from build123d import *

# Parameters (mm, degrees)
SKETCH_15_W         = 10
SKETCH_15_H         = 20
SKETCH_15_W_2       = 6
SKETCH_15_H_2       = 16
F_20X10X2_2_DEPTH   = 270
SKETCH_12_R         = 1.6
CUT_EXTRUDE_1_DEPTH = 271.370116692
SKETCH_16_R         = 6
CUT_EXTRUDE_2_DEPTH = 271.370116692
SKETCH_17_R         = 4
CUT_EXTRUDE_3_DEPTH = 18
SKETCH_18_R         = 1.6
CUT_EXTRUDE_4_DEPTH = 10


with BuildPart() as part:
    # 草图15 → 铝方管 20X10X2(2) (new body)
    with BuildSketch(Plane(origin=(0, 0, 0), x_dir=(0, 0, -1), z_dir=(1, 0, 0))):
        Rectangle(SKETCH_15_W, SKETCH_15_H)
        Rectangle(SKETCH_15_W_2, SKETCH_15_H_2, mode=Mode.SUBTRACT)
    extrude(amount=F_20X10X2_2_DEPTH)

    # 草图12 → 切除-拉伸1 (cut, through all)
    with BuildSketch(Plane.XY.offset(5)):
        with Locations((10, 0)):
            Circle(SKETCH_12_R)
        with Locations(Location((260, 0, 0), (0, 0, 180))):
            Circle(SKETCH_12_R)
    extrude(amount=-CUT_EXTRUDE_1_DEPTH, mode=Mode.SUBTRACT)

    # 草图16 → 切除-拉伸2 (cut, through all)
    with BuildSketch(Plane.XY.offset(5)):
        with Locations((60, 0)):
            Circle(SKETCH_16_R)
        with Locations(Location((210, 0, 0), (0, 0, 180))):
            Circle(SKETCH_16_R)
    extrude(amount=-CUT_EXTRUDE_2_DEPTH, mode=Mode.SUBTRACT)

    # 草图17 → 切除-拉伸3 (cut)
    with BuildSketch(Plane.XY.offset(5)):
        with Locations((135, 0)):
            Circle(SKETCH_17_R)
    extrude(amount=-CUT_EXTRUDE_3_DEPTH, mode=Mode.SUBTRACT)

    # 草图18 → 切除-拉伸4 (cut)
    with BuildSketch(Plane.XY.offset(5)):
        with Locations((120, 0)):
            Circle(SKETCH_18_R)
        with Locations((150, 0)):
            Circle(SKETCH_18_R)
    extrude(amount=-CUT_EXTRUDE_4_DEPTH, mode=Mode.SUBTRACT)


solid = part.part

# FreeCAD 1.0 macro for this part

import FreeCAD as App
import Part
import Sketcher
from FreeCAD import Vector
Q = App.Units.Quantity


def add_polygon(sketch, points):
    """Adds a closed chain of lines whose ends are joined by coincident constraints."""
    first, n = sketch.GeometryCount, len(points)
    for a, b in zip(points, points[1:] + points[:1]):
        sketch.addGeometry(Part.LineSegment(App.Vector(*a, 0), App.Vector(*b, 0)), False)
    for i in range(n):
        sketch.addConstraint(Sketcher.Constraint("Coincident", first + i, 2, first + (i + 1) % n, 1))

doc = App.newDocument("Part")
params = doc.addObject("Spreadsheet::Sheet", "Params")
for row, (alias, value) in enumerate([
    ("sketch1_width", "20 mm"),
    ("sketch1_width2", "16 mm"),
    ("sketch1_height", "10 mm"),
    ("sketch1_height2", "6 mm"),
    ("pad1_length", "270 mm"),
    ("sketch2_diameter", "3.2 mm"),
    ("sketch3_diameter", "12 mm"),
    ("sketch4_diameter", "8 mm"),
    ("pocket3_length", "18 mm"),
    ("sketch5_diameter", "3.2 mm"),
    ("pocket4_length", "10 mm"),
], start=1):
    params.set(f"A{row}", alias)
    params.set(f"B{row}", "=" + value)
    params.setAlias(f"B{row}", alias)

body = doc.addObject("PartDesign::Body", "Body")

# Sketch on YZ plane
sketch1 = doc.addObject("Sketcher::SketchObject", "Sketch")
body.addObject(sketch1)
sketch1.AttachmentSupport = (doc.YZ_Plane, [""])
sketch1.MapMode = "FlatFace"
add_polygon(sketch1, [(10, 5), (-10, 5), (-10, -5), (10, -5)])  # lines 0-3
add_polygon(sketch1, [(-8, -3), (-8, 3), (8, 3), (8, -3)])  # lines 4-7
sketch1.addConstraint(Sketcher.Constraint("Horizontal", 0))
sketch1.addConstraint(Sketcher.Constraint("Vertical", 1))
sketch1.addConstraint(Sketcher.Constraint("Horizontal", 2))
sketch1.addConstraint(Sketcher.Constraint("Vertical", 3))
sketch1.addConstraint(Sketcher.Constraint("Vertical", 4))
sketch1.addConstraint(Sketcher.Constraint("Horizontal", 5))
sketch1.addConstraint(Sketcher.Constraint("Vertical", 6))
sketch1.addConstraint(Sketcher.Constraint("Horizontal", 7))
sketch1.addConstraint(Sketcher.Constraint("Symmetric", 0, 2, 2, 2, -1, 1))
sketch1.addConstraint(Sketcher.Constraint("Symmetric", 4, 2, 6, 2, -1, 1))
sketch1.addConstraint(Sketcher.Constraint("DistanceX", 0, 2, 0, 1, Q("20 mm")))
sketch1.addConstraint(Sketcher.Constraint("DistanceX", 5, 1, 5, 2, Q("16 mm")))
sketch1.addConstraint(Sketcher.Constraint("DistanceY", 1, 2, 1, 1, Q("10 mm")))
sketch1.addConstraint(Sketcher.Constraint("DistanceY", 4, 1, 4, 2, Q("6 mm")))
sketch1.setExpression("Constraints[18]", "Params.sketch1_width")
sketch1.setExpression("Constraints[19]", "Params.sketch1_width2")
sketch1.setExpression("Constraints[20]", "Params.sketch1_height")
sketch1.setExpression("Constraints[21]", "Params.sketch1_height2")
pad1 = doc.addObject("PartDesign::Pad", "Pad")
body.addObject(pad1)
pad1.Profile = sketch1
pad1.setExpression("Length", "Params.pad1_length")

# Sketch on XY plane
sketch2 = doc.addObject("Sketcher::SketchObject", "Sketch001")
body.addObject(sketch2)
sketch2.AttachmentSupport = (doc.XY_Plane, [""])
sketch2.MapMode = "FlatFace"
sketch2.AttachmentOffset = App.Placement(Vector(0, 0, 5), App.Rotation())
sketch2.addGeometry(Part.Circle(Vector(10, 0, 0), Vector(0, 0, 1), 1.6), False)
sketch2.addGeometry(Part.Circle(Vector(260, 0, 0), Vector(0, 0, 1), 1.6), False)
sketch2.addConstraint(Sketcher.Constraint("Equal", 0, 1))
sketch2.addConstraint(Sketcher.Constraint("PointOnObject", 0, 3, -1))
sketch2.addConstraint(Sketcher.Constraint("PointOnObject", 1, 3, -1))
sketch2.addConstraint(Sketcher.Constraint("Diameter", 0, Q("3.2 mm")))
sketch2.addConstraint(Sketcher.Constraint("DistanceX", -1, 1, 0, 3, Q("10 mm")))
sketch2.addConstraint(Sketcher.Constraint("DistanceX", -1, 1, 1, 3, Q("260 mm")))
sketch2.setExpression("Constraints[3]", "Params.sketch2_diameter")
pocket1 = doc.addObject("PartDesign::Pocket", "Pocket")
body.addObject(pocket1)
pocket1.Profile = sketch2
pocket1.Type = "ThroughAll"

# Sketch on XY plane
sketch3 = doc.addObject("Sketcher::SketchObject", "Sketch002")
body.addObject(sketch3)
sketch3.AttachmentSupport = (doc.XY_Plane, [""])
sketch3.MapMode = "FlatFace"
sketch3.AttachmentOffset = App.Placement(Vector(0, 0, 5), App.Rotation())
sketch3.addGeometry(Part.Circle(Vector(60, 0, 0), Vector(0, 0, 1), 6), False)
sketch3.addGeometry(Part.Circle(Vector(210, 0, 0), Vector(0, 0, 1), 6), False)
sketch3.addConstraint(Sketcher.Constraint("Equal", 0, 1))
sketch3.addConstraint(Sketcher.Constraint("PointOnObject", 0, 3, -1))
sketch3.addConstraint(Sketcher.Constraint("PointOnObject", 1, 3, -1))
sketch3.addConstraint(Sketcher.Constraint("Diameter", 0, Q("12 mm")))
sketch3.addConstraint(Sketcher.Constraint("DistanceX", -1, 1, 0, 3, Q("60 mm")))
sketch3.addConstraint(Sketcher.Constraint("DistanceX", -1, 1, 1, 3, Q("210 mm")))
sketch3.setExpression("Constraints[3]", "Params.sketch3_diameter")
pocket2 = doc.addObject("PartDesign::Pocket", "Pocket001")
body.addObject(pocket2)
pocket2.Profile = sketch3
pocket2.Type = "ThroughAll"

# Sketch on XY plane
sketch4 = doc.addObject("Sketcher::SketchObject", "Sketch003")
body.addObject(sketch4)
sketch4.AttachmentSupport = (doc.XY_Plane, [""])
sketch4.MapMode = "FlatFace"
sketch4.AttachmentOffset = App.Placement(Vector(0, 0, 5), App.Rotation())
sketch4.addGeometry(Part.Circle(Vector(135, 0, 0), Vector(0, 0, 1), 4), False)
sketch4.addConstraint(Sketcher.Constraint("PointOnObject", 0, 3, -1))
sketch4.addConstraint(Sketcher.Constraint("Diameter", 0, Q("8 mm")))
sketch4.addConstraint(Sketcher.Constraint("DistanceX", -1, 1, 0, 3, Q("135 mm")))
sketch4.setExpression("Constraints[1]", "Params.sketch4_diameter")
pocket3 = doc.addObject("PartDesign::Pocket", "Pocket002")
body.addObject(pocket3)
pocket3.Profile = sketch4
pocket3.setExpression("Length", "Params.pocket3_length")

# Sketch on XY plane
sketch5 = doc.addObject("Sketcher::SketchObject", "Sketch004")
body.addObject(sketch5)
sketch5.AttachmentSupport = (doc.XY_Plane, [""])
sketch5.MapMode = "FlatFace"
sketch5.AttachmentOffset = App.Placement(Vector(0, 0, 5), App.Rotation())
sketch5.addGeometry(Part.Circle(Vector(120, 0, 0), Vector(0, 0, 1), 1.6), False)
sketch5.addGeometry(Part.Circle(Vector(150, 0, 0), Vector(0, 0, 1), 1.6), False)
sketch5.addConstraint(Sketcher.Constraint("Equal", 0, 1))
sketch5.addConstraint(Sketcher.Constraint("PointOnObject", 0, 3, -1))
sketch5.addConstraint(Sketcher.Constraint("PointOnObject", 1, 3, -1))
sketch5.addConstraint(Sketcher.Constraint("Diameter", 0, Q("3.2 mm")))
sketch5.addConstraint(Sketcher.Constraint("DistanceX", -1, 1, 0, 3, Q("120 mm")))
sketch5.addConstraint(Sketcher.Constraint("DistanceX", -1, 1, 1, 3, Q("150 mm")))
sketch5.setExpression("Constraints[3]", "Params.sketch5_diameter")
pocket4 = doc.addObject("PartDesign::Pocket", "Pocket003")
body.addObject(pocket4)
pocket4.Profile = sketch5
pocket4.setExpression("Length", "Params.pocket4_length")

doc.recompute()
